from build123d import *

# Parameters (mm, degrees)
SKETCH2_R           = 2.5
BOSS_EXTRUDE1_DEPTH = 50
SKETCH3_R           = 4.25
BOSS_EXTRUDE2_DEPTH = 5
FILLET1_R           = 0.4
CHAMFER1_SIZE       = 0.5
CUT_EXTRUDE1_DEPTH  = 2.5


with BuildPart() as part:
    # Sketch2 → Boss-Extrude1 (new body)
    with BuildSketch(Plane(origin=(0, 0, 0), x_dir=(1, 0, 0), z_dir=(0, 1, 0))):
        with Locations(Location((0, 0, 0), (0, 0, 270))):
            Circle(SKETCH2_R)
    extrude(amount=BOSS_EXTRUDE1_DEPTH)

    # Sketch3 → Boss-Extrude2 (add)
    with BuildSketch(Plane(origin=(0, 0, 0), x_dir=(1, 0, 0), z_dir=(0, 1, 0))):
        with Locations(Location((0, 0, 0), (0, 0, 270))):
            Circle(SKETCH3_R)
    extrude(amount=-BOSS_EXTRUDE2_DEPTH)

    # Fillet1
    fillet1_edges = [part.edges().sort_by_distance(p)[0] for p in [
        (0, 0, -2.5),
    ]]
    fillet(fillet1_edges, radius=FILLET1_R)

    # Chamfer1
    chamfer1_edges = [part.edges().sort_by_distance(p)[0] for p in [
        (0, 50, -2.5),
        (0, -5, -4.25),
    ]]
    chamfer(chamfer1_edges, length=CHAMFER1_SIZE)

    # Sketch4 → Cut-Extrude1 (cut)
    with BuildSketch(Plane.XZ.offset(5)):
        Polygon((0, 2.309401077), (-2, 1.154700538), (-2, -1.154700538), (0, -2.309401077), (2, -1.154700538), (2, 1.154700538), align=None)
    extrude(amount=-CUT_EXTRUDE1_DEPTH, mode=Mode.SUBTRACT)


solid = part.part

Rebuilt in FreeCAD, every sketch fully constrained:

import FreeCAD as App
import Part
import Sketcher
Q = App.Units.Quantity


def edges_at(feature, points):
    """Names of the edges that pass closest to the given points."""
    edges = feature.Shape.Edges
    near = lambda p: min(range(len(edges)), key=lambda i: edges[i].distToShape(Part.Vertex(*p))[0])
    return sorted({f"Edge{near(p) + 1}" for p in points})


def add_polygon(sketch, points):
    """Adds a closed chain of lines whose ends are joined by coincident constraints."""
    first, n = sketch.GeometryCount, len(points)
    for a, b in zip(points, points[1:] + points[:1]):
        sketch.addGeometry(Part.LineSegment(App.Vector(*a, 0), App.Vector(*b, 0)), False)
    for i in range(n):
        sketch.addConstraint(Sketcher.Constraint("Coincident", first + i, 2, first + (i + 1) % n, 1))

doc = App.newDocument("Part")
body = doc.addObject("PartDesign::Body", "Body")

# Sketch on XZ plane
sketch1 = doc.addObject("Sketcher::SketchObject", "Sketch")
body.addObject(sketch1)
sketch1.AttachmentSupport = (doc.XZ_Plane, [""])
sketch1.MapMode = "FlatFace"
sketch1.addGeometry(Part.Circle(App.Vector(0, 0, 0), App.Vector(0, 0, 1), 2.5), False)
sketch1.addConstraint([
    Sketcher.Constraint("Coincident", 0, 3, -1, 1),
    Sketcher.Constraint("Diameter", 0, 5.0),
])
pad1 = doc.addObject("PartDesign::Pad", "Pad")
body.addObject(pad1)
pad1.Profile = sketch1
pad1.Length = 50
pad1.Reversed = True

# Sketch on XZ plane
sketch2 = doc.addObject("Sketcher::SketchObject", "Sketch001")
body.addObject(sketch2)
sketch2.AttachmentSupport = (doc.XZ_Plane, [""])
sketch2.MapMode = "FlatFace"
sketch2.addGeometry(Part.Circle(App.Vector(0, 0, 0), App.Vector(0, 0, 1), 4.25), False)
sketch2.addConstraint([
    Sketcher.Constraint("Coincident", 0, 3, -1, 1),
    Sketcher.Constraint("Diameter", 0, 8.5),
])
pad2 = doc.addObject("PartDesign::Pad", "Pad001")
body.addObject(pad2)
pad2.Profile = sketch2
pad2.Length = 5
doc.recompute()

fillet = doc.addObject("PartDesign::Fillet", "Fillet")
body.addObject(fillet)
fillet.Base = (pad2, edges_at(pad2, [(0, 0, -2.5)]))
fillet.Radius = 0.4
doc.recompute()

chamfer = doc.addObject("PartDesign::Chamfer", "Chamfer")
body.addObject(chamfer)
chamfer.Base = (fillet, edges_at(fillet, [(0, 50, -2.5), (0, -5, -4.25)]))
chamfer.Size = 0.5

# Sketch on XZ plane
sketch3 = doc.addObject("Sketcher::SketchObject", "Sketch002")
body.addObject(sketch3)
sketch3.AttachmentSupport = (doc.XZ_Plane, [""])
sketch3.MapMode = "FlatFace"
sketch3.AttachmentOffset = App.Placement(App.Vector(0, 0, 5), App.Rotation())
add_polygon(sketch3, [(0, 2.309401), (-2, 1.154701), (-2, -1.154701), (0, -2.309401), (2, -1.154701), (2, 1.154701)])  # lines 0-5
sketch3.addConstraint([
    Sketcher.Constraint("Vertical", 1),
    Sketcher.Constraint("Vertical", 4),
    Sketcher.Constraint("Symmetric", 0, 2, 3, 2, -1, 1),
    Sketcher.Constraint("Symmetric", 2, 2, 5, 2, -1, 1),
    Sketcher.Constraint("PointOnObject", 2, 2, -2),
    Sketcher.Constraint("Parallel", 2, 5),
    Sketcher.Constraint("Horizontal", 1, 2, 3, 2),
    Sketcher.Constraint("Angle", 0, Q("-150 deg")),
    Sketcher.Constraint("DistanceX", 0, 2, -1, 1, 2.0),
    Sketcher.Constraint("DistanceY", 1, 2, 1, 1, 2.309401),
])
pocket1 = doc.addObject("PartDesign::Pocket", "Pocket")
body.addObject(pocket1)
pocket1.Profile = sketch3
pocket1.Length = 2.5

doc.recompute()
